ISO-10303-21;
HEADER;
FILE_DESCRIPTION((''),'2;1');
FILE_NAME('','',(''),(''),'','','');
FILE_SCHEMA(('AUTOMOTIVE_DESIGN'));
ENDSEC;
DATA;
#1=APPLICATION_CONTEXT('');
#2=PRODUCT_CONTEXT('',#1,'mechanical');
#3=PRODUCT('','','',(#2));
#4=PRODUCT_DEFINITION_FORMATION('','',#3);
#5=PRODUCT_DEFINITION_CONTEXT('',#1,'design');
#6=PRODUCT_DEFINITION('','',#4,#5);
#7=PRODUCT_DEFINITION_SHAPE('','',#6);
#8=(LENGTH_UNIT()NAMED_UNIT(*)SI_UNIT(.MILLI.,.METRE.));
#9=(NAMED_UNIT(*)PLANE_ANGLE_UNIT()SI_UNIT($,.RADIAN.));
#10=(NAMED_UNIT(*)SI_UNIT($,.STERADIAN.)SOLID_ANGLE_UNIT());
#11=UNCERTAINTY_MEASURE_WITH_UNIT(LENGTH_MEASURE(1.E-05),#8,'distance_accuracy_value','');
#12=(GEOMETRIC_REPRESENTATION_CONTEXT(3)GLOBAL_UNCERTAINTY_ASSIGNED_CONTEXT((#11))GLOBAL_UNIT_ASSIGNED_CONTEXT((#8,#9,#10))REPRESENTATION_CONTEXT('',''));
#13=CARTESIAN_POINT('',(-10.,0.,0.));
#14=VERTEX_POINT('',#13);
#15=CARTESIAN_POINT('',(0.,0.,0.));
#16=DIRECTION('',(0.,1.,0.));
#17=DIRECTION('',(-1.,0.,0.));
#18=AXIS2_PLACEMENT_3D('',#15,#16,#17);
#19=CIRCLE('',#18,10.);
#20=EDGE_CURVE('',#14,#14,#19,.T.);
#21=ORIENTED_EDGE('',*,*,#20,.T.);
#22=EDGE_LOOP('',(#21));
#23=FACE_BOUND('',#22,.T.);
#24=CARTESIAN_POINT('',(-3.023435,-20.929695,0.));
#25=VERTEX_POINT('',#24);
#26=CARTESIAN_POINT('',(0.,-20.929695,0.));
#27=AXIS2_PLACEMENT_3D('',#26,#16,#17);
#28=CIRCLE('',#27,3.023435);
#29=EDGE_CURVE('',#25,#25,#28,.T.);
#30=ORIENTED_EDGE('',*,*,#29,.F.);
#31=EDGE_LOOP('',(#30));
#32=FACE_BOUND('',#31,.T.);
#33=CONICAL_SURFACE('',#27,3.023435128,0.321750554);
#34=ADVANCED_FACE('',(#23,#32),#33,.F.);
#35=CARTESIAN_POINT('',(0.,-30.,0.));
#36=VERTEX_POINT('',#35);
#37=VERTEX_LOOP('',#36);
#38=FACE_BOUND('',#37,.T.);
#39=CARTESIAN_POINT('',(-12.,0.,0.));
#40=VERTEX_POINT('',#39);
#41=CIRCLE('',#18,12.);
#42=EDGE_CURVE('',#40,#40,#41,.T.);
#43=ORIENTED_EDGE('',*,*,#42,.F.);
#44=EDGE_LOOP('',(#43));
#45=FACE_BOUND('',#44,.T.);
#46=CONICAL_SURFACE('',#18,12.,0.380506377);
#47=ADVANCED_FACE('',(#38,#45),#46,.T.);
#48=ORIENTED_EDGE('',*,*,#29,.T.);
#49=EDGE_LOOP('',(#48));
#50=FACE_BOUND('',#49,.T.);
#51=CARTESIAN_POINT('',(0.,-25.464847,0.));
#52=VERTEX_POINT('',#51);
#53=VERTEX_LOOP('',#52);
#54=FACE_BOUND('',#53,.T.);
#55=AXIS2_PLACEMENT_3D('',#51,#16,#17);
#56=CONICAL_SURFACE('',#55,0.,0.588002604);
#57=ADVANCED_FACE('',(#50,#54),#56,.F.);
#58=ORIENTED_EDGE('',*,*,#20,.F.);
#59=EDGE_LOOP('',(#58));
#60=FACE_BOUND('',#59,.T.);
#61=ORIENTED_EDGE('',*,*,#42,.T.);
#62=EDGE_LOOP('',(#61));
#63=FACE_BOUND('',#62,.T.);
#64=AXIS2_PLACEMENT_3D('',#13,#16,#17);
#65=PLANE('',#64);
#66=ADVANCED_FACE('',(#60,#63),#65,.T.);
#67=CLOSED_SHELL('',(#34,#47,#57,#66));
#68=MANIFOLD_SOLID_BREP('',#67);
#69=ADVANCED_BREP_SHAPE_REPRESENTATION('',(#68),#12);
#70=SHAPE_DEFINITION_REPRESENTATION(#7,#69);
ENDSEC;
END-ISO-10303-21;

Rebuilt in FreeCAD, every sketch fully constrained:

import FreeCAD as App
import Part
import Sketcher

V = App.Vector
Q = App.Units.Quantity


def add_polygon(sketch, points):
    """Adds a closed chain of lines whose ends are joined by coincident constraints."""
    first, n = sketch.GeometryCount, len(points)
    for a, b in zip(points, points[1:] + points[:1]):
        sketch.addGeometry(Part.LineSegment(App.Vector(*a, 0), App.Vector(*b, 0)), False)
    for i in range(n):
        sketch.addConstraint(Sketcher.Constraint("Coincident", first + i, 2, first + (i + 1) % n, 1))

doc = App.newDocument("Part")
body = doc.addObject("PartDesign::Body", "Body")

# Sketch on XY plane
sketch1 = body.newObject("Sketcher::SketchObject", "Sketch")
sketch1.AttachmentSupport = (doc.getObject("XY_Plane"), [""])
sketch1.MapMode = "FlatFace"
add_polygon(sketch1, [(-10, 0), (-12, 0), (0, -30), (0, -25.5), (-3, -20.9)])  # lines 0-4
sketch1.addConstraint(Sketcher.Constraint("Horizontal", 0))
sketch1.addConstraint(Sketcher.Constraint("Vertical", 2))
sketch1.addConstraint(Sketcher.Constraint("PointOnObject", 0, 2, -1))
sketch1.addConstraint(Sketcher.Constraint("PointOnObject", 1, 2, -2))
sketch1.addConstraint(Sketcher.Constraint("DistanceX", 0, 2, 0, 1, Q("2 mm")))
sketch1.addConstraint(Sketcher.Constraint("DistanceX", 0, 2, -1, 1, Q("12 mm")))
sketch1.addConstraint(Sketcher.Constraint("DistanceY", 1, 2, -1, 1, Q("30 mm")))
sketch1.addConstraint(Sketcher.Constraint("DistanceY", 2, 1, 2, 2, Q("4.535153 mm")))
sketch1.addConstraint(Sketcher.Constraint("Distance", 3, Q("5.450575 mm")))
sketch1.addConstraint(Sketcher.Constraint("Distance", 4, Q("22.061835 mm")))
revolution = body.newObject("PartDesign::Revolution", "Revolution")
revolution.Profile = sketch1
revolution.ReferenceAxis = (sketch1, ["V_Axis"])
revolution.Angle = 360

doc.recompute()
